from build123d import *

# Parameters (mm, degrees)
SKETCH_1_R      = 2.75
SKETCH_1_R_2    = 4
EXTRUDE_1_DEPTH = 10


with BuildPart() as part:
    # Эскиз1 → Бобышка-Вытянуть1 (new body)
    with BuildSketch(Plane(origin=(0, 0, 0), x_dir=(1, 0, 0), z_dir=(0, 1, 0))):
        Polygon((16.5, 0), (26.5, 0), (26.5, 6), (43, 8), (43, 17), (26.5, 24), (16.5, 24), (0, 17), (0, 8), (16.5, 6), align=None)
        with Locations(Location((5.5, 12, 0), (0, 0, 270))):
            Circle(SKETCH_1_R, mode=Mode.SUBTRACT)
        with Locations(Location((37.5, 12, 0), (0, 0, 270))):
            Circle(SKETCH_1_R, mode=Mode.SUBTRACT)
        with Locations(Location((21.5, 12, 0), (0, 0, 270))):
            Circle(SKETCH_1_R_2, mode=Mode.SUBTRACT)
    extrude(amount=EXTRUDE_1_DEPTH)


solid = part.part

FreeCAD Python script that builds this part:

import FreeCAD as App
import Part
import Sketcher
Q = App.Units.Quantity


def add_polygon(sketch, points):
    """Adds a closed chain of lines whose ends are joined by coincident constraints."""
    first, n = sketch.GeometryCount, len(points)
    for a, b in zip(points, points[1:] + points[:1]):
        sketch.addGeometry(Part.LineSegment(App.Vector(*a, 0), App.Vector(*b, 0)), False)
    for i in range(n):
        sketch.addConstraint(Sketcher.Constraint("Coincident", first + i, 2, first + (i + 1) % n, 1))

doc = App.newDocument("Part")
params = doc.addObject("Spreadsheet::Sheet", "Params")
for row, (alias, value) in enumerate([
    ("sketch1_diameter", "8 mm"),
    ("sketch1_diameter2", "5.5 mm"),
    ("sketch1_width", "10 mm"),
    ("sketch1_height", "6 mm"),
    ("sketch1_height2", "9 mm"),
    ("pad1_length", "10 mm"),
], start=1):
    params.set(f"A{row}", alias)
    params.set(f"B{row}", "=" + value)
    params.setAlias(f"B{row}", alias)

body = doc.addObject("PartDesign::Body", "Body")

sketch1 = body.newObject("Sketcher::SketchObject", "Sketch")
sketch1.AttachmentSupport = (doc.getObject("XZ_Plane"), [""])
sketch1.MapMode = "FlatFace"
add_polygon(sketch1, [(16.5, 0), (26.5, 0), (26.5, -6), (43, -8), (43, -17), (26.5, -24), (16.5, -24), (0, -17), (0, -8), (16.5, -6)])
sketch1.addGeometry(Part.Circle(App.Vector(5.5, -12, 0), App.Vector(0, 0, 1), 2.8), False)
sketch1.addGeometry(Part.Circle(App.Vector(21.5, -12, 0), App.Vector(0, 0, 1), 4), False)
sketch1.addGeometry(Part.Circle(App.Vector(37.5, -12, 0), App.Vector(0, 0, 1), 2.8), False)
sketch1.addConstraint([
    Sketcher.Constraint("Horizontal", 0),
    Sketcher.Constraint("Vertical", 1),
    Sketcher.Constraint("Vertical", 3),
    Sketcher.Constraint("Horizontal", 5),
    Sketcher.Constraint("Vertical", 7),
    Sketcher.Constraint("Vertical", 9),
    Sketcher.Constraint("Equal", 10, 12),
    Sketcher.Constraint("PointOnObject", 0, 2, -1),
    Sketcher.Constraint("PointOnObject", 6, 2, -2),
    Sketcher.Constraint("Horizontal", 10, 3, 11, 3),
    Sketcher.Constraint("Horizontal", 11, 3, 12, 3),
    Sketcher.Constraint("Horizontal", 3, 2, 6, 2),
    Sketcher.Constraint("Horizontal", 2, 2, 7, 2),
    Sketcher.Constraint("Horizontal", 1, 2, 8, 2),
    Sketcher.Constraint("Vertical", 1, 2, 4, 2),
    Sketcher.Constraint("Vertical", 5, 2, 8, 2),
    Sketcher.Constraint("Equal", 4, 6),
    Sketcher.Constraint("Diameter", 11, Q("8 mm")),
    Sketcher.Constraint("Diameter", 10, Q("5.5 mm")),
    Sketcher.Constraint("DistanceX", 0, 1, 0, 2, Q("10 mm")),
    Sketcher.Constraint("DistanceY", 1, 2, 1, 1, Q("6 mm")),
    Sketcher.Constraint("DistanceY", 3, 2, 3, 1, Q("9 mm")),
    Sketcher.Constraint("DistanceY", 10, 3, -1, 1, Q("12 mm")),
    Sketcher.Constraint("DistanceX", -1, 1, 2, 2, Q("43 mm")),
    Sketcher.Constraint("DistanceY", 2, 2, -1, 1, Q("8 mm")),
    Sketcher.Constraint("DistanceY", 4, 2, -1, 1, Q("24 mm")),
    Sketcher.Constraint("DistanceX", 10, 3, 11, 3, Q("16 mm")),
    Sketcher.Constraint("DistanceX", 11, 3, 12, 3, Q("16 mm")),
    Sketcher.Constraint("DistanceX", 11, 3, 0, 2, Q("5 mm")),
])
sketch1.setExpression("Constraints[27]", "Params.sketch1_diameter")
sketch1.setExpression("Constraints[28]", "Params.sketch1_diameter2")
sketch1.setExpression("Constraints[29]", "Params.sketch1_width")
sketch1.setExpression("Constraints[30]", "Params.sketch1_height")
sketch1.setExpression("Constraints[31]", "Params.sketch1_height2")
pad1 = body.newObject("PartDesign::Pad", "Pad")
pad1.Profile = sketch1
pad1.setExpression("Length", "Params.pad1_length")
pad1.Reversed = True

doc.recompute()
